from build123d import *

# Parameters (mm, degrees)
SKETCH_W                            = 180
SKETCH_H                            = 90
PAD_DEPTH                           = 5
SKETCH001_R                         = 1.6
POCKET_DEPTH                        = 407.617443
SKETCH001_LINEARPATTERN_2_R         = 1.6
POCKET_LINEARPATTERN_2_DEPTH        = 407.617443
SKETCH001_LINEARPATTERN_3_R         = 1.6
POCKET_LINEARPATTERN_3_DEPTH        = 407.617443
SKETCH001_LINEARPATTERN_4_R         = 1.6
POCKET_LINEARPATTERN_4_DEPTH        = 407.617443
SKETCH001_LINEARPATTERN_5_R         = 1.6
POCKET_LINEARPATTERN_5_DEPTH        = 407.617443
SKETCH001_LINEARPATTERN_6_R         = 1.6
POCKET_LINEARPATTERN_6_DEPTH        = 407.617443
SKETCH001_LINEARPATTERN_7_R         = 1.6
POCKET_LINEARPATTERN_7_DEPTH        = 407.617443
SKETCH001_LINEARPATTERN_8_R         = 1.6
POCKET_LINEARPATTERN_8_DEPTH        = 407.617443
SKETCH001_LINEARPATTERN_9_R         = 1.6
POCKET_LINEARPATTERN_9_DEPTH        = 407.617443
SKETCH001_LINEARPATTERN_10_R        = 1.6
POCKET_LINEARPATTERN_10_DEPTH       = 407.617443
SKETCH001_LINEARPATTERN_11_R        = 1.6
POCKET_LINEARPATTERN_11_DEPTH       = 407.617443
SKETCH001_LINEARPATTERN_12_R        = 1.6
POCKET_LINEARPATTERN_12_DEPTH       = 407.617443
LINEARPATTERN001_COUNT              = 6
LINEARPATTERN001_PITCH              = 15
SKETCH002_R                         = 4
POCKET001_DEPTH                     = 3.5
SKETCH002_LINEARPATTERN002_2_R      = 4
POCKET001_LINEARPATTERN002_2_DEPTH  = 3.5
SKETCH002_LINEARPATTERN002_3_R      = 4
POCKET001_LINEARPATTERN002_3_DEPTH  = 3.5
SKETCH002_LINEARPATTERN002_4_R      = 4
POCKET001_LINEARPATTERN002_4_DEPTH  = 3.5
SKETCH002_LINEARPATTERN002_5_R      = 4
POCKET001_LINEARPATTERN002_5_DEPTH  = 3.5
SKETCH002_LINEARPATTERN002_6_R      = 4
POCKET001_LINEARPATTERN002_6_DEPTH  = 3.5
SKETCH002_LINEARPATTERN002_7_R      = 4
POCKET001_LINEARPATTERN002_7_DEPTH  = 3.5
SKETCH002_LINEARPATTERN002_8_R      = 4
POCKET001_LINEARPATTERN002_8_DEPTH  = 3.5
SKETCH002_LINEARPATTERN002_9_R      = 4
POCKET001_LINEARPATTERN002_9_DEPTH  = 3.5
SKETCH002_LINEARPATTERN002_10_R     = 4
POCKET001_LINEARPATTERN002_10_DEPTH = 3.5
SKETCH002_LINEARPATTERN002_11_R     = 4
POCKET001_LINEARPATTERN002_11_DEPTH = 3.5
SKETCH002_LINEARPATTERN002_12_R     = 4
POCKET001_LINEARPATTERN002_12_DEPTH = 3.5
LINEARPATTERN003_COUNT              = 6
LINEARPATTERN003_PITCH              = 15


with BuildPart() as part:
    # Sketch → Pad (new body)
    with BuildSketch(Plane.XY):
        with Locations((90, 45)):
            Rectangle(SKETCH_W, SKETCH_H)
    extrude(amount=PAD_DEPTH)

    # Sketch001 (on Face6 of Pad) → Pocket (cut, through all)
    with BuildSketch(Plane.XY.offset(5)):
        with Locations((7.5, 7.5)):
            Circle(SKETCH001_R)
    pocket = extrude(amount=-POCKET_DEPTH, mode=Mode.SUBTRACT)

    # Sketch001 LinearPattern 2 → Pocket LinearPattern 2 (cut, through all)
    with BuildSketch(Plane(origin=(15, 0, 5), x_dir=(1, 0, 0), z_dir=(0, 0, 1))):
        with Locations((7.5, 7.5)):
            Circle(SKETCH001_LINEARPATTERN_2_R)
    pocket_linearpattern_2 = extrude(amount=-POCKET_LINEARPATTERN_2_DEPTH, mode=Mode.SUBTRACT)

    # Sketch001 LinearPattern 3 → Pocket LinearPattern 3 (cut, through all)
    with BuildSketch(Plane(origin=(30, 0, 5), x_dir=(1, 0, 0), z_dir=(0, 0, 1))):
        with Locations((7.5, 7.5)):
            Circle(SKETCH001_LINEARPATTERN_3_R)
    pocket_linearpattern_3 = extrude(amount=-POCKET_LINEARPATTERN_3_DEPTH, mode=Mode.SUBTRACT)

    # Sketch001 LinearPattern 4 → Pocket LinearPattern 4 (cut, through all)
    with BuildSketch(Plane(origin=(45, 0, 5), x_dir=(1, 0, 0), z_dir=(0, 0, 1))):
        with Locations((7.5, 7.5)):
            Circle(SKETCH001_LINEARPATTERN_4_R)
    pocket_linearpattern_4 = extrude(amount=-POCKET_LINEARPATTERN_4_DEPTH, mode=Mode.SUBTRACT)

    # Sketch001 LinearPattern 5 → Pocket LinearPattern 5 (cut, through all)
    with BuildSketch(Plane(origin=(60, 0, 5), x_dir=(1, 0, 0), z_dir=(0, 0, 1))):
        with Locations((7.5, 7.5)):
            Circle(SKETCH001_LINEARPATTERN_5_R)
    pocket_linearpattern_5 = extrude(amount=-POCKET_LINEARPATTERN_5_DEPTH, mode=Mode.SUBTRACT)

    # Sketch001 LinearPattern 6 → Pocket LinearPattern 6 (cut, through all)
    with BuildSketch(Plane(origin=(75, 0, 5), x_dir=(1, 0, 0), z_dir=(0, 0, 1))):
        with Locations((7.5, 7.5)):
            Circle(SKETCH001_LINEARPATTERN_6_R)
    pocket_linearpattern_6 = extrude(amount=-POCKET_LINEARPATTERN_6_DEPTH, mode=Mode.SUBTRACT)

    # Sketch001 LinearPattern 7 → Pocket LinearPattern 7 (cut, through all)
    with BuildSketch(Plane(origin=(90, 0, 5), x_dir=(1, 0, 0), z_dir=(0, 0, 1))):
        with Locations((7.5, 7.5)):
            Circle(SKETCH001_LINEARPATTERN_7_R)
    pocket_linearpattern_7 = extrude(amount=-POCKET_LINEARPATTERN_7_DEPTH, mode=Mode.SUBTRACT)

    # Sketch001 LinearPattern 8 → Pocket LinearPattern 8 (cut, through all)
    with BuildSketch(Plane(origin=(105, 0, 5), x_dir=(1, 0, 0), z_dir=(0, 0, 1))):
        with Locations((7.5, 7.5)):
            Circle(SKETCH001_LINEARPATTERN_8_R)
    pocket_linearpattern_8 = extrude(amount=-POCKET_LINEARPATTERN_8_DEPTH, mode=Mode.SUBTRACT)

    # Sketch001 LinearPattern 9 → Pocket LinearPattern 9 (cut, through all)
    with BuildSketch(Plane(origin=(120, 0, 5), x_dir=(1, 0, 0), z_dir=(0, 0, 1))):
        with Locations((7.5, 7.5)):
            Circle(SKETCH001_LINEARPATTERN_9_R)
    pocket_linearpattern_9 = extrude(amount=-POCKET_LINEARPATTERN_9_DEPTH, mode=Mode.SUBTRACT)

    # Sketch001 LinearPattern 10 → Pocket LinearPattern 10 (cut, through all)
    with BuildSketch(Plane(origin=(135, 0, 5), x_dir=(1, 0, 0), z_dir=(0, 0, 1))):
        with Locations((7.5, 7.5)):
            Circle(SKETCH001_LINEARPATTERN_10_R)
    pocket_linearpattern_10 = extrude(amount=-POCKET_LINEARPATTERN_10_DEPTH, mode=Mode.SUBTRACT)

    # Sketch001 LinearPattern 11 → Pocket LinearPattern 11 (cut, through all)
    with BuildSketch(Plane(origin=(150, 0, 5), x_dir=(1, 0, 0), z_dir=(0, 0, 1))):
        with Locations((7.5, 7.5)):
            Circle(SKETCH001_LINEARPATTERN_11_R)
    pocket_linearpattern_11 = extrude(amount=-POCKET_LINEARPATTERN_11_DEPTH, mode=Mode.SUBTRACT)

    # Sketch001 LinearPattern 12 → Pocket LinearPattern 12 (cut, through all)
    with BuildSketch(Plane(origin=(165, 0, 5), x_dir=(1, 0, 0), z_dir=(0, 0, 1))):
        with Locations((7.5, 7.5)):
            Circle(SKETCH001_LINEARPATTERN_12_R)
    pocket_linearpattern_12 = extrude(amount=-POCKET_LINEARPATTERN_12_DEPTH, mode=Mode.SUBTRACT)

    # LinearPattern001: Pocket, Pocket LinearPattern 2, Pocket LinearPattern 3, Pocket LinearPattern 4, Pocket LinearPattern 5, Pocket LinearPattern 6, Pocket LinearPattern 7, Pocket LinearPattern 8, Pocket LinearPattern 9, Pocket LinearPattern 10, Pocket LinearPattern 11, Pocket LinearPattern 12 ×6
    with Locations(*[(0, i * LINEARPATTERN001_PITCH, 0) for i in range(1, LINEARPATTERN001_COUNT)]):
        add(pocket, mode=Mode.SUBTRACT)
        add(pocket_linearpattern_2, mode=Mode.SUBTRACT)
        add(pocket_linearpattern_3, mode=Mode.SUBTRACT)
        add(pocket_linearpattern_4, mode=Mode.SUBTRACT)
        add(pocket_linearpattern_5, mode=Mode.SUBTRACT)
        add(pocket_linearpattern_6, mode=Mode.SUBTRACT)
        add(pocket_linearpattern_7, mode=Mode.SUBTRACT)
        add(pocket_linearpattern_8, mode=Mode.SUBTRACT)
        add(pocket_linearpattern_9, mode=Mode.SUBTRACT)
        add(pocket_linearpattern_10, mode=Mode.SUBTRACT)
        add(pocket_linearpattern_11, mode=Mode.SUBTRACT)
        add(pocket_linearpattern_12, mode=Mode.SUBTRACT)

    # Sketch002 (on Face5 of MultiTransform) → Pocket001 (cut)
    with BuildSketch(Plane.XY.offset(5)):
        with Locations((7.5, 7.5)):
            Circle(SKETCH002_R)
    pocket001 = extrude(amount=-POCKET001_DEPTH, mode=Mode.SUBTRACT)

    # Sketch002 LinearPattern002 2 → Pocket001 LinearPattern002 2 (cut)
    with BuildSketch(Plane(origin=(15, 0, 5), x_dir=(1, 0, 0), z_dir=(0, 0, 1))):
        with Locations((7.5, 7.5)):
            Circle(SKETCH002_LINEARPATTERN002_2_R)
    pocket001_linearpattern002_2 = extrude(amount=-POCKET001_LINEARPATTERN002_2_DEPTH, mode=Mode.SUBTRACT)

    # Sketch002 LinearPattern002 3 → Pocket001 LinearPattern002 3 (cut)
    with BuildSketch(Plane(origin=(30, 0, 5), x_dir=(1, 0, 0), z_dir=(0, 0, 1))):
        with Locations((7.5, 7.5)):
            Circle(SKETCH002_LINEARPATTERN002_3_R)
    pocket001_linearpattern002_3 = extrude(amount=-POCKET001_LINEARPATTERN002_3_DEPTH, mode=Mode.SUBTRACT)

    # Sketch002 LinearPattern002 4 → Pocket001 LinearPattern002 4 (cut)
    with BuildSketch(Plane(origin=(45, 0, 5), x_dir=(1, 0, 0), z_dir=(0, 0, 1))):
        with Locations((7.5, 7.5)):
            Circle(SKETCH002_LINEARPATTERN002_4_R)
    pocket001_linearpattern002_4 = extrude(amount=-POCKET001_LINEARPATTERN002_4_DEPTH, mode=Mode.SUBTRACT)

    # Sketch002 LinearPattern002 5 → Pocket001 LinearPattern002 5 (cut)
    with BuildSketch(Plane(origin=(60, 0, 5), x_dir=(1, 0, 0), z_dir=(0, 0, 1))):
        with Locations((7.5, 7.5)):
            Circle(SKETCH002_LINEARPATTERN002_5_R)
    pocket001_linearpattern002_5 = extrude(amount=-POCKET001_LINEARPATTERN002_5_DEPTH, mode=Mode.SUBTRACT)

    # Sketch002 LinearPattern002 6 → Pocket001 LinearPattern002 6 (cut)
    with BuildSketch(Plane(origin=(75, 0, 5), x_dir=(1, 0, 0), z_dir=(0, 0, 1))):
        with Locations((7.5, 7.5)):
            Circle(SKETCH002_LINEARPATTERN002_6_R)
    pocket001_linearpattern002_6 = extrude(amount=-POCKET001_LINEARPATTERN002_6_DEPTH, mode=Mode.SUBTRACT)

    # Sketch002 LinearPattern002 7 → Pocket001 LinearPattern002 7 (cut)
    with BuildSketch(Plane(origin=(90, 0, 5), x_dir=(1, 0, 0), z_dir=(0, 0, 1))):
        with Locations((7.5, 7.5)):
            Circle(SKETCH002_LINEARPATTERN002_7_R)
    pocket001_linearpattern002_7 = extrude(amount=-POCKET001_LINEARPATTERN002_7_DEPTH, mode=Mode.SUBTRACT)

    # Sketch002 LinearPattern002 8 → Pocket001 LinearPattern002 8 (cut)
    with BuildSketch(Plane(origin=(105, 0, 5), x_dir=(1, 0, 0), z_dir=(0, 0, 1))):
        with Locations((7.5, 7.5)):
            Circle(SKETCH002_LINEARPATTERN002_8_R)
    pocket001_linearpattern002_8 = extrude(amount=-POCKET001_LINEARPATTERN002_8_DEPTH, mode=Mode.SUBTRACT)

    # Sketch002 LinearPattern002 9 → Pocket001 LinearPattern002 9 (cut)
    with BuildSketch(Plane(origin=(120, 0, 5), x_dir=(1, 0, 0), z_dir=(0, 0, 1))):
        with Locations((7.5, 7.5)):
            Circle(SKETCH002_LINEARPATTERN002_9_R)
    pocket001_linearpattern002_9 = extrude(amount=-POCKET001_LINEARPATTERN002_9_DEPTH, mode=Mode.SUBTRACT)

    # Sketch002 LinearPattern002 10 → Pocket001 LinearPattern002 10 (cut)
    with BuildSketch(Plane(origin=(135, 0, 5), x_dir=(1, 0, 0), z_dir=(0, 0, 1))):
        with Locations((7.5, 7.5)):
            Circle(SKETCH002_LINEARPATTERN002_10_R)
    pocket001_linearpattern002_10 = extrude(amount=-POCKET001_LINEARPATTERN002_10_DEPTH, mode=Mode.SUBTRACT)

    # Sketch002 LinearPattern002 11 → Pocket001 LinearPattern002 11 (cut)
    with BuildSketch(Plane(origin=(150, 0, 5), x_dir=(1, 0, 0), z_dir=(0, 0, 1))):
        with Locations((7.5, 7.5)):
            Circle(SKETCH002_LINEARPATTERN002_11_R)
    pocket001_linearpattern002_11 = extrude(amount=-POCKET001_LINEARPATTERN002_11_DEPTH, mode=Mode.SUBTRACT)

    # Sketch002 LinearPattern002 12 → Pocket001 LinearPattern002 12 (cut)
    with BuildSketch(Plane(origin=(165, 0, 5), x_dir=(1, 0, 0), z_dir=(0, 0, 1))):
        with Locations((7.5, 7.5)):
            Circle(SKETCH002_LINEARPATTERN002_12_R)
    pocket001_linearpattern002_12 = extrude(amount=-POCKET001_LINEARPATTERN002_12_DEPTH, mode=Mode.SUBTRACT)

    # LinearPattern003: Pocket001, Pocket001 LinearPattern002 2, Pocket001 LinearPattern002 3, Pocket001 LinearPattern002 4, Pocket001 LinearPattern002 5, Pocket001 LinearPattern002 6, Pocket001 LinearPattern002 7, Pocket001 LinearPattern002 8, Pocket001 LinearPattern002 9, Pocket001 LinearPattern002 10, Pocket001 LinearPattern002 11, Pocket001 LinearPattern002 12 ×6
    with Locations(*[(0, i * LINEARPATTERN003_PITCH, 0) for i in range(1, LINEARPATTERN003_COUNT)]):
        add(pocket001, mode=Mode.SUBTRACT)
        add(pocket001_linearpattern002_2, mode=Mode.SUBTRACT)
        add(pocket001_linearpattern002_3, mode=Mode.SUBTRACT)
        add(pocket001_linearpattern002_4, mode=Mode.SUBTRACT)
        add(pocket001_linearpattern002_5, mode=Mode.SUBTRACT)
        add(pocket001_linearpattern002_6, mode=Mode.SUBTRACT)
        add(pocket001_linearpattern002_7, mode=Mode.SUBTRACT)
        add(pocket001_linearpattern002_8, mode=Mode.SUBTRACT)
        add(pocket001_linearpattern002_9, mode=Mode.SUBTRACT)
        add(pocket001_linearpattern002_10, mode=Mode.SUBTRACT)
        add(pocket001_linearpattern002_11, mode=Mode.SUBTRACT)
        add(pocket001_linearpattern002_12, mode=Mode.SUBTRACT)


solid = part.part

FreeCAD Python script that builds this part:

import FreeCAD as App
import Part
import Sketcher
Q = App.Units.Quantity


def add_polygon(sketch, points):
    """Adds a closed chain of lines whose ends are joined by coincident constraints."""
    first, n = sketch.GeometryCount, len(points)
    for a, b in zip(points, points[1:] + points[:1]):
        sketch.addGeometry(Part.LineSegment(App.Vector(*a, 0), App.Vector(*b, 0)), False)
    for i in range(n):
        sketch.addConstraint(Sketcher.Constraint("Coincident", first + i, 2, first + (i + 1) % n, 1))

doc = App.newDocument("Part")
body = doc.addObject("PartDesign::Body", "Body")

# Sketch on XY plane
sketch1 = body.newObject("Sketcher::SketchObject", "Sketch")
sketch1.AttachmentSupport = (doc.getObject("XY_Plane"), [""])
sketch1.MapMode = "FlatFace"
add_polygon(sketch1, [(0, 90), (0, 0), (180, 0), (180, 90)])  # lines 0-3
sketch1.addConstraint([
    Sketcher.Constraint("Vertical", 0),
    Sketcher.Constraint("Horizontal", 1),
    Sketcher.Constraint("Vertical", 2),
    Sketcher.Constraint("Horizontal", 3),
    Sketcher.Constraint("Coincident", 0, 2, -1, 1),
    Sketcher.Constraint("DistanceX", 1, 1, 1, 2, Q("180 mm")),
    Sketcher.Constraint("DistanceY", 0, 2, 0, 1, Q("90 mm")),
])
pad1 = body.newObject("PartDesign::Pad", "Pad")
pad1.Profile = sketch1
pad1.Length = 5

# Sketch on XY plane
sketch2 = body.newObject("Sketcher::SketchObject", "Sketch001")
sketch2.AttachmentSupport = (doc.getObject("XY_Plane"), [""])
sketch2.MapMode = "FlatFace"
sketch2.AttachmentOffset = App.Placement(App.Vector(0, 0, 5), App.Rotation())
sketch2.addGeometry(Part.Circle(App.Vector(7.5, 7.5, 0), App.Vector(0, 0, 1), 1.6), False)
sketch2.addConstraint([
    Sketcher.Constraint("Diameter", 0, Q("3.2 mm")),
    Sketcher.Constraint("DistanceX", -1, 1, 0, 3, Q("7.5 mm")),
    Sketcher.Constraint("DistanceY", -1, 1, 0, 3, Q("7.5 mm")),
])
pocket1 = body.newObject("PartDesign::Pocket", "Pocket")
pocket1.Profile = sketch2
pocket1.Type = "ThroughAll"

# Sketch on XY plane
sketch3 = body.newObject("Sketcher::SketchObject", "Sketch002")
sketch3.AttachmentSupport = (doc.getObject("XY_Plane"), [""])
sketch3.MapMode = "FlatFace"
sketch3.AttachmentOffset = App.Placement(App.Vector(0, 0, 5), App.Rotation())
sketch3.addGeometry(Part.Circle(App.Vector(22.5, 7.5, 0), App.Vector(0, 0, 1), 1.6), False)
sketch3.addConstraint([
    Sketcher.Constraint("Diameter", 0, Q("3.2 mm")),
    Sketcher.Constraint("DistanceX", -1, 1, 0, 3, Q("22.5 mm")),
    Sketcher.Constraint("DistanceY", -1, 1, 0, 3, Q("7.5 mm")),
])
pocket2 = body.newObject("PartDesign::Pocket", "Pocket001")
pocket2.Profile = sketch3
pocket2.Type = "ThroughAll"

# Sketch on XY plane
sketch4 = body.newObject("Sketcher::SketchObject", "Sketch003")
sketch4.AttachmentSupport = (doc.getObject("XY_Plane"), [""])
sketch4.MapMode = "FlatFace"
sketch4.AttachmentOffset = App.Placement(App.Vector(0, 0, 5), App.Rotation())
sketch4.addGeometry(Part.Circle(App.Vector(37.5, 7.5, 0), App.Vector(0, 0, 1), 1.6), False)
sketch4.addConstraint([
    Sketcher.Constraint("Diameter", 0, Q("3.2 mm")),
    Sketcher.Constraint("DistanceX", -1, 1, 0, 3, Q("37.5 mm")),
    Sketcher.Constraint("DistanceY", -1, 1, 0, 3, Q("7.5 mm")),
])
pocket3 = body.newObject("PartDesign::Pocket", "Pocket002")
pocket3.Profile = sketch4
pocket3.Type = "ThroughAll"

# Sketch on XY plane
sketch5 = body.newObject("Sketcher::SketchObject", "Sketch004")
sketch5.AttachmentSupport = (doc.getObject("XY_Plane"), [""])
sketch5.MapMode = "FlatFace"
sketch5.AttachmentOffset = App.Placement(App.Vector(0, 0, 5), App.Rotation())
sketch5.addGeometry(Part.Circle(App.Vector(52.5, 7.5, 0), App.Vector(0, 0, 1), 1.6), False)
sketch5.addConstraint([
    Sketcher.Constraint("Diameter", 0, Q("3.2 mm")),
    Sketcher.Constraint("DistanceX", -1, 1, 0, 3, Q("52.5 mm")),
    Sketcher.Constraint("DistanceY", -1, 1, 0, 3, Q("7.5 mm")),
])
pocket4 = body.newObject("PartDesign::Pocket", "Pocket003")
pocket4.Profile = sketch5
pocket4.Type = "ThroughAll"

# Sketch on XY plane
sketch6 = body.newObject("Sketcher::SketchObject", "Sketch005")
sketch6.AttachmentSupport = (doc.getObject("XY_Plane"), [""])
sketch6.MapMode = "FlatFace"
sketch6.AttachmentOffset = App.Placement(App.Vector(0, 0, 5), App.Rotation())
sketch6.addGeometry(Part.Circle(App.Vector(67.5, 7.5, 0), App.Vector(0, 0, 1), 1.6), False)
sketch6.addConstraint([
    Sketcher.Constraint("Diameter", 0, Q("3.2 mm")),
    Sketcher.Constraint("DistanceX", -1, 1, 0, 3, Q("67.5 mm")),
    Sketcher.Constraint("DistanceY", -1, 1, 0, 3, Q("7.5 mm")),
])
pocket5 = body.newObject("PartDesign::Pocket", "Pocket004")
pocket5.Profile = sketch6
pocket5.Type = "ThroughAll"

# Sketch on XY plane
sketch7 = body.newObject("Sketcher::SketchObject", "Sketch006")
sketch7.AttachmentSupport = (doc.getObject("XY_Plane"), [""])
sketch7.MapMode = "FlatFace"
sketch7.AttachmentOffset = App.Placement(App.Vector(0, 0, 5), App.Rotation())
sketch7.addGeometry(Part.Circle(App.Vector(82.5, 7.5, 0), App.Vector(0, 0, 1), 1.6), False)
sketch7.addConstraint([
    Sketcher.Constraint("Diameter", 0, Q("3.2 mm")),
    Sketcher.Constraint("DistanceX", -1, 1, 0, 3, Q("82.5 mm")),
    Sketcher.Constraint("DistanceY", -1, 1, 0, 3, Q("7.5 mm")),
])
pocket6 = body.newObject("PartDesign::Pocket", "Pocket005")
pocket6.Profile = sketch7
pocket6.Type = "ThroughAll"

# Sketch on XY plane
sketch8 = body.newObject("Sketcher::SketchObject", "Sketch007")
sketch8.AttachmentSupport = (doc.getObject("XY_Plane"), [""])
sketch8.MapMode = "FlatFace"
sketch8.AttachmentOffset = App.Placement(App.Vector(0, 0, 5), App.Rotation())
sketch8.addGeometry(Part.Circle(App.Vector(97.5, 7.5, 0), App.Vector(0, 0, 1), 1.6), False)
sketch8.addConstraint([
    Sketcher.Constraint("Diameter", 0, Q("3.2 mm")),
    Sketcher.Constraint("DistanceX", -1, 1, 0, 3, Q("97.5 mm")),
    Sketcher.Constraint("DistanceY", -1, 1, 0, 3, Q("7.5 mm")),
])
pocket7 = body.newObject("PartDesign::Pocket", "Pocket006")
pocket7.Profile = sketch8
pocket7.Type = "ThroughAll"

# Sketch on XY plane
sketch9 = body.newObject("Sketcher::SketchObject", "Sketch008")
sketch9.AttachmentSupport = (doc.getObject("XY_Plane"), [""])
sketch9.MapMode = "FlatFace"
sketch9.AttachmentOffset = App.Placement(App.Vector(0, 0, 5), App.Rotation())
sketch9.addGeometry(Part.Circle(App.Vector(112.5, 7.5, 0), App.Vector(0, 0, 1), 1.6), False)
sketch9.addConstraint([
    Sketcher.Constraint("Diameter", 0, Q("3.2 mm")),
    Sketcher.Constraint("DistanceX", -1, 1, 0, 3, Q("112.5 mm")),
    Sketcher.Constraint("DistanceY", -1, 1, 0, 3, Q("7.5 mm")),
])
pocket8 = body.newObject("PartDesign::Pocket", "Pocket007")
pocket8.Profile = sketch9
pocket8.Type = "ThroughAll"

# Sketch on XY plane
sketch10 = body.newObject("Sketcher::SketchObject", "Sketch009")
sketch10.AttachmentSupport = (doc.getObject("XY_Plane"), [""])
sketch10.MapMode = "FlatFace"
sketch10.AttachmentOffset = App.Placement(App.Vector(0, 0, 5), App.Rotation())
sketch10.addGeometry(Part.Circle(App.Vector(127.5, 7.5, 0), App.Vector(0, 0, 1), 1.6), False)
sketch10.addConstraint([
    Sketcher.Constraint("Diameter", 0, Q("3.2 mm")),
    Sketcher.Constraint("DistanceX", -1, 1, 0, 3, Q("127.5 mm")),
    Sketcher.Constraint("DistanceY", -1, 1, 0, 3, Q("7.5 mm")),
])
pocket9 = body.newObject("PartDesign::Pocket", "Pocket008")
pocket9.Profile = sketch10
pocket9.Type = "ThroughAll"

# Sketch on XY plane
sketch11 = body.newObject("Sketcher::SketchObject", "Sketch010")
sketch11.AttachmentSupport = (doc.getObject("XY_Plane"), [""])
sketch11.MapMode = "FlatFace"
sketch11.AttachmentOffset = App.Placement(App.Vector(0, 0, 5), App.Rotation())
sketch11.addGeometry(Part.Circle(App.Vector(142.5, 7.5, 0), App.Vector(0, 0, 1), 1.6), False)
sketch11.addConstraint([
    Sketcher.Constraint("Diameter", 0, Q("3.2 mm")),
    Sketcher.Constraint("DistanceX", -1, 1, 0, 3, Q("142.5 mm")),
    Sketcher.Constraint("DistanceY", -1, 1, 0, 3, Q("7.5 mm")),
])
pocket10 = body.newObject("PartDesign::Pocket", "Pocket009")
pocket10.Profile = sketch11
pocket10.Type = "ThroughAll"

# Sketch on XY plane
sketch12 = body.newObject("Sketcher::SketchObject", "Sketch011")
sketch12.AttachmentSupport = (doc.getObject("XY_Plane"), [""])
sketch12.MapMode = "FlatFace"
sketch12.AttachmentOffset = App.Placement(App.Vector(0, 0, 5), App.Rotation())
sketch12.addGeometry(Part.Circle(App.Vector(157.5, 7.5, 0), App.Vector(0, 0, 1), 1.6), False)
sketch12.addConstraint([
    Sketcher.Constraint("Diameter", 0, Q("3.2 mm")),
    Sketcher.Constraint("DistanceX", -1, 1, 0, 3, Q("157.5 mm")),
    Sketcher.Constraint("DistanceY", -1, 1, 0, 3, Q("7.5 mm")),
])
pocket11 = body.newObject("PartDesign::Pocket", "Pocket010")
pocket11.Profile = sketch12
pocket11.Type = "ThroughAll"

# Sketch on XY plane
sketch13 = body.newObject("Sketcher::SketchObject", "Sketch012")
sketch13.AttachmentSupport = (doc.getObject("XY_Plane"), [""])
sketch13.MapMode = "FlatFace"
sketch13.AttachmentOffset = App.Placement(App.Vector(0, 0, 5), App.Rotation())
sketch13.addGeometry(Part.Circle(App.Vector(172.5, 7.5, 0), App.Vector(0, 0, 1), 1.6), False)
sketch13.addConstraint([
    Sketcher.Constraint("Diameter", 0, Q("3.2 mm")),
    Sketcher.Constraint("DistanceX", -1, 1, 0, 3, Q("172.5 mm")),
    Sketcher.Constraint("DistanceY", -1, 1, 0, 3, Q("7.5 mm")),
])
pocket12 = body.newObject("PartDesign::Pocket", "Pocket011")
pocket12.Profile = sketch13
pocket12.Type = "ThroughAll"
doc.recompute()

linearpattern = body.newObject("PartDesign::LinearPattern", "LinearPattern")
linearpattern.Originals = [pocket1, pocket2, pocket3, pocket4, pocket5, pocket6, pocket7, pocket8, pocket9, pocket10, pocket11, pocket12]
linearpattern.Direction = (doc.getObject("Y_Axis"), [""])
linearpattern.Mode = "offset"
linearpattern.Offset = 15
linearpattern.Occurrences = 6
body.Tip = linearpattern

# Sketch on XY plane
sketch14 = body.newObject("Sketcher::SketchObject", "Sketch013")
sketch14.AttachmentSupport = (doc.getObject("XY_Plane"), [""])
sketch14.MapMode = "FlatFace"
sketch14.AttachmentOffset = App.Placement(App.Vector(0, 0, 5), App.Rotation())
sketch14.addGeometry(Part.Circle(App.Vector(7.5, 7.5, 0), App.Vector(0, 0, 1), 4), False)
sketch14.addConstraint([
    Sketcher.Constraint("Diameter", 0, Q("8 mm")),
    Sketcher.Constraint("DistanceX", -1, 1, 0, 3, Q("7.5 mm")),
    Sketcher.Constraint("DistanceY", -1, 1, 0, 3, Q("7.5 mm")),
])
pocket13 = body.newObject("PartDesign::Pocket", "Pocket012")
pocket13.Profile = sketch14
pocket13.Length = 3.5

# Sketch on XY plane
sketch15 = body.newObject("Sketcher::SketchObject", "Sketch014")
sketch15.AttachmentSupport = (doc.getObject("XY_Plane"), [""])
sketch15.MapMode = "FlatFace"
sketch15.AttachmentOffset = App.Placement(App.Vector(0, 0, 5), App.Rotation())
sketch15.addGeometry(Part.Circle(App.Vector(22.5, 7.5, 0), App.Vector(0, 0, 1), 4), False)
sketch15.addConstraint([
    Sketcher.Constraint("Diameter", 0, Q("8 mm")),
    Sketcher.Constraint("DistanceX", -1, 1, 0, 3, Q("22.5 mm")),
    Sketcher.Constraint("DistanceY", -1, 1, 0, 3, Q("7.5 mm")),
])
pocket14 = body.newObject("PartDesign::Pocket", "Pocket013")
pocket14.Profile = sketch15
pocket14.Length = 3.5

# Sketch on XY plane
sketch16 = body.newObject("Sketcher::SketchObject", "Sketch015")
sketch16.AttachmentSupport = (doc.getObject("XY_Plane"), [""])
sketch16.MapMode = "FlatFace"
sketch16.AttachmentOffset = App.Placement(App.Vector(0, 0, 5), App.Rotation())
sketch16.addGeometry(Part.Circle(App.Vector(37.5, 7.5, 0), App.Vector(0, 0, 1), 4), False)
sketch16.addConstraint([
    Sketcher.Constraint("Diameter", 0, Q("8 mm")),
    Sketcher.Constraint("DistanceX", -1, 1, 0, 3, Q("37.5 mm")),
    Sketcher.Constraint("DistanceY", -1, 1, 0, 3, Q("7.5 mm")),
])
pocket15 = body.newObject("PartDesign::Pocket", "Pocket014")
pocket15.Profile = sketch16
pocket15.Length = 3.5

# Sketch on XY plane
sketch17 = body.newObject("Sketcher::SketchObject", "Sketch016")
sketch17.AttachmentSupport = (doc.getObject("XY_Plane"), [""])
sketch17.MapMode = "FlatFace"
sketch17.AttachmentOffset = App.Placement(App.Vector(0, 0, 5), App.Rotation())
sketch17.addGeometry(Part.Circle(App.Vector(52.5, 7.5, 0), App.Vector(0, 0, 1), 4), False)
sketch17.addConstraint([
    Sketcher.Constraint("Diameter", 0, Q("8 mm")),
    Sketcher.Constraint("DistanceX", -1, 1, 0, 3, Q("52.5 mm")),
    Sketcher.Constraint("DistanceY", -1, 1, 0, 3, Q("7.5 mm")),
])
pocket16 = body.newObject("PartDesign::Pocket", "Pocket015")
pocket16.Profile = sketch17
pocket16.Length = 3.5

# Sketch on XY plane
sketch18 = body.newObject("Sketcher::SketchObject", "Sketch017")
sketch18.AttachmentSupport = (doc.getObject("XY_Plane"), [""])
sketch18.MapMode = "FlatFace"
sketch18.AttachmentOffset = App.Placement(App.Vector(0, 0, 5), App.Rotation())
sketch18.addGeometry(Part.Circle(App.Vector(67.5, 7.5, 0), App.Vector(0, 0, 1), 4), False)
sketch18.addConstraint([
    Sketcher.Constraint("Diameter", 0, Q("8 mm")),
    Sketcher.Constraint("DistanceX", -1, 1, 0, 3, Q("67.5 mm")),
    Sketcher.Constraint("DistanceY", -1, 1, 0, 3, Q("7.5 mm")),
])
pocket17 = body.newObject("PartDesign::Pocket", "Pocket016")
pocket17.Profile = sketch18
pocket17.Length = 3.5

# Sketch on XY plane
sketch19 = body.newObject("Sketcher::SketchObject", "Sketch018")
sketch19.AttachmentSupport = (doc.getObject("XY_Plane"), [""])
sketch19.MapMode = "FlatFace"
sketch19.AttachmentOffset = App.Placement(App.Vector(0, 0, 5), App.Rotation())
sketch19.addGeometry(Part.Circle(App.Vector(82.5, 7.5, 0), App.Vector(0, 0, 1), 4), False)
sketch19.addConstraint([
    Sketcher.Constraint("Diameter", 0, Q("8 mm")),
    Sketcher.Constraint("DistanceX", -1, 1, 0, 3, Q("82.5 mm")),
    Sketcher.Constraint("DistanceY", -1, 1, 0, 3, Q("7.5 mm")),
])
pocket18 = body.newObject("PartDesign::Pocket", "Pocket017")
pocket18.Profile = sketch19
pocket18.Length = 3.5

# Sketch on XY plane
sketch20 = body.newObject("Sketcher::SketchObject", "Sketch019")
sketch20.AttachmentSupport = (doc.getObject("XY_Plane"), [""])
sketch20.MapMode = "FlatFace"
sketch20.AttachmentOffset = App.Placement(App.Vector(0, 0, 5), App.Rotation())
sketch20.addGeometry(Part.Circle(App.Vector(97.5, 7.5, 0), App.Vector(0, 0, 1), 4), False)
sketch20.addConstraint([
    Sketcher.Constraint("Diameter", 0, Q("8 mm")),
    Sketcher.Constraint("DistanceX", -1, 1, 0, 3, Q("97.5 mm")),
    Sketcher.Constraint("DistanceY", -1, 1, 0, 3, Q("7.5 mm")),
])
pocket19 = body.newObject("PartDesign::Pocket", "Pocket018")
pocket19.Profile = sketch20
pocket19.Length = 3.5

# Sketch on XY plane
sketch21 = body.newObject("Sketcher::SketchObject", "Sketch020")
sketch21.AttachmentSupport = (doc.getObject("XY_Plane"), [""])
sketch21.MapMode = "FlatFace"
sketch21.AttachmentOffset = App.Placement(App.Vector(0, 0, 5), App.Rotation())
sketch21.addGeometry(Part.Circle(App.Vector(112.5, 7.5, 0), App.Vector(0, 0, 1), 4), False)
sketch21.addConstraint([
    Sketcher.Constraint("Diameter", 0, Q("8 mm")),
    Sketcher.Constraint("DistanceX", -1, 1, 0, 3, Q("112.5 mm")),
    Sketcher.Constraint("DistanceY", -1, 1, 0, 3, Q("7.5 mm")),
])
pocket20 = body.newObject("PartDesign::Pocket", "Pocket019")
pocket20.Profile = sketch21
pocket20.Length = 3.5

# Sketch on XY plane
sketch22 = body.newObject("Sketcher::SketchObject", "Sketch021")
sketch22.AttachmentSupport = (doc.getObject("XY_Plane"), [""])
sketch22.MapMode = "FlatFace"
sketch22.AttachmentOffset = App.Placement(App.Vector(0, 0, 5), App.Rotation())
sketch22.addGeometry(Part.Circle(App.Vector(127.5, 7.5, 0), App.Vector(0, 0, 1), 4), False)
sketch22.addConstraint([
    Sketcher.Constraint("Diameter", 0, Q("8 mm")),
    Sketcher.Constraint("DistanceX", -1, 1, 0, 3, Q("127.5 mm")),
    Sketcher.Constraint("DistanceY", -1, 1, 0, 3, Q("7.5 mm")),
])
pocket21 = body.newObject("PartDesign::Pocket", "Pocket020")
pocket21.Profile = sketch22
pocket21.Length = 3.5

# Sketch on XY plane
sketch23 = body.newObject("Sketcher::SketchObject", "Sketch022")
sketch23.AttachmentSupport = (doc.getObject("XY_Plane"), [""])
sketch23.MapMode = "FlatFace"
sketch23.AttachmentOffset = App.Placement(App.Vector(0, 0, 5), App.Rotation())
sketch23.addGeometry(Part.Circle(App.Vector(142.5, 7.5, 0), App.Vector(0, 0, 1), 4), False)
sketch23.addConstraint([
    Sketcher.Constraint("Diameter", 0, Q("8 mm")),
    Sketcher.Constraint("DistanceX", -1, 1, 0, 3, Q("142.5 mm")),
    Sketcher.Constraint("DistanceY", -1, 1, 0, 3, Q("7.5 mm")),
])
pocket22 = body.newObject("PartDesign::Pocket", "Pocket021")
pocket22.Profile = sketch23
pocket22.Length = 3.5

# Sketch on XY plane
sketch24 = body.newObject("Sketcher::SketchObject", "Sketch023")
sketch24.AttachmentSupport = (doc.getObject("XY_Plane"), [""])
sketch24.MapMode = "FlatFace"
sketch24.AttachmentOffset = App.Placement(App.Vector(0, 0, 5), App.Rotation())
sketch24.addGeometry(Part.Circle(App.Vector(157.5, 7.5, 0), App.Vector(0, 0, 1), 4), False)
sketch24.addConstraint([
    Sketcher.Constraint("Diameter", 0, Q("8 mm")),
    Sketcher.Constraint("DistanceX", -1, 1, 0, 3, Q("157.5 mm")),
    Sketcher.Constraint("DistanceY", -1, 1, 0, 3, Q("7.5 mm")),
])
pocket23 = body.newObject("PartDesign::Pocket", "Pocket022")
pocket23.Profile = sketch24
pocket23.Length = 3.5

# Sketch on XY plane
sketch25 = body.newObject("Sketcher::SketchObject", "Sketch024")
sketch25.AttachmentSupport = (doc.getObject("XY_Plane"), [""])
sketch25.MapMode = "FlatFace"
sketch25.AttachmentOffset = App.Placement(App.Vector(0, 0, 5), App.Rotation())
sketch25.addGeometry(Part.Circle(App.Vector(172.5, 7.5, 0), App.Vector(0, 0, 1), 4), False)
sketch25.addConstraint([
    Sketcher.Constraint("Diameter", 0, Q("8 mm")),
    Sketcher.Constraint("DistanceX", -1, 1, 0, 3, Q("172.5 mm")),
    Sketcher.Constraint("DistanceY", -1, 1, 0, 3, Q("7.5 mm")),
])
pocket24 = body.newObject("PartDesign::Pocket", "Pocket023")
pocket24.Profile = sketch25
pocket24.Length = 3.5
doc.recompute()

linearpattern2 = body.newObject("PartDesign::LinearPattern", "LinearPattern001")
linearpattern2.Originals = [pocket13, pocket14, pocket15, pocket16, pocket17, pocket18, pocket19, pocket20, pocket21, pocket22, pocket23, pocket24]
linearpattern2.Direction = (doc.getObject("Y_Axis"), [""])
linearpattern2.Mode = "offset"
linearpattern2.Offset = 15
linearpattern2.Occurrences = 6
body.Tip = linearpattern2

doc.recompute()
